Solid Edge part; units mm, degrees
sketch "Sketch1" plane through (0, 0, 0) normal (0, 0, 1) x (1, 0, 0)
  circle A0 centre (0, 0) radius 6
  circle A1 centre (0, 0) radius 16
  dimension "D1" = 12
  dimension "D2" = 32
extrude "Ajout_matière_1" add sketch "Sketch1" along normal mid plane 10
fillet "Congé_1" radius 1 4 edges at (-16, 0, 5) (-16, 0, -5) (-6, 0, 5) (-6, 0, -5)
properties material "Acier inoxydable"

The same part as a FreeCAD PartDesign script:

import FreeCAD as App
import Part
import Sketcher


def edges_at(feature, points):
    """Names of the edges that pass closest to the given points."""
    edges = feature.Shape.Edges
    near = lambda p: min(range(len(edges)), key=lambda i: edges[i].distToShape(Part.Vertex(*p))[0])
    return sorted({f"Edge{near(p) + 1}" for p in points})

doc = App.newDocument("Part")
body = doc.addObject("PartDesign::Body", "Body")

# Sketch on XY plane
sketch1 = body.newObject("Sketcher::SketchObject", "Sketch")
sketch1.AttachmentSupport = (doc.getObject("XY_Plane"), [""])
sketch1.MapMode = "FlatFace"
sketch1.addGeometry(Part.Circle(App.Vector(0, 0, 0), App.Vector(0, 0, 1), 16), False)
sketch1.addGeometry(Part.Circle(App.Vector(0, 0, 0), App.Vector(0, 0, 1), 6), False)
sketch1.addConstraint(Sketcher.Constraint("Coincident", 0, 3, -1, 1))
sketch1.addConstraint(Sketcher.Constraint("Coincident", 1, 3, -1, 1))
sketch1.addConstraint(Sketcher.Constraint("Diameter", 0, 32.0))
sketch1.addConstraint(Sketcher.Constraint("Diameter", 1, 12.0))
pad1 = body.newObject("PartDesign::Pad", "Pad")
pad1.Profile = sketch1
pad1.Length = 10
pad1.Midplane = True
doc.recompute()

fillet = body.newObject("PartDesign::Fillet", "Fillet")
fillet.Base = (pad1, edges_at(pad1, [
    (-16, 0, 5),
    (-16, 0, -5),
    (-6, 0, 5),
    (-6, 0, -5),
]))
fillet.Radius = 1

doc.recompute()
